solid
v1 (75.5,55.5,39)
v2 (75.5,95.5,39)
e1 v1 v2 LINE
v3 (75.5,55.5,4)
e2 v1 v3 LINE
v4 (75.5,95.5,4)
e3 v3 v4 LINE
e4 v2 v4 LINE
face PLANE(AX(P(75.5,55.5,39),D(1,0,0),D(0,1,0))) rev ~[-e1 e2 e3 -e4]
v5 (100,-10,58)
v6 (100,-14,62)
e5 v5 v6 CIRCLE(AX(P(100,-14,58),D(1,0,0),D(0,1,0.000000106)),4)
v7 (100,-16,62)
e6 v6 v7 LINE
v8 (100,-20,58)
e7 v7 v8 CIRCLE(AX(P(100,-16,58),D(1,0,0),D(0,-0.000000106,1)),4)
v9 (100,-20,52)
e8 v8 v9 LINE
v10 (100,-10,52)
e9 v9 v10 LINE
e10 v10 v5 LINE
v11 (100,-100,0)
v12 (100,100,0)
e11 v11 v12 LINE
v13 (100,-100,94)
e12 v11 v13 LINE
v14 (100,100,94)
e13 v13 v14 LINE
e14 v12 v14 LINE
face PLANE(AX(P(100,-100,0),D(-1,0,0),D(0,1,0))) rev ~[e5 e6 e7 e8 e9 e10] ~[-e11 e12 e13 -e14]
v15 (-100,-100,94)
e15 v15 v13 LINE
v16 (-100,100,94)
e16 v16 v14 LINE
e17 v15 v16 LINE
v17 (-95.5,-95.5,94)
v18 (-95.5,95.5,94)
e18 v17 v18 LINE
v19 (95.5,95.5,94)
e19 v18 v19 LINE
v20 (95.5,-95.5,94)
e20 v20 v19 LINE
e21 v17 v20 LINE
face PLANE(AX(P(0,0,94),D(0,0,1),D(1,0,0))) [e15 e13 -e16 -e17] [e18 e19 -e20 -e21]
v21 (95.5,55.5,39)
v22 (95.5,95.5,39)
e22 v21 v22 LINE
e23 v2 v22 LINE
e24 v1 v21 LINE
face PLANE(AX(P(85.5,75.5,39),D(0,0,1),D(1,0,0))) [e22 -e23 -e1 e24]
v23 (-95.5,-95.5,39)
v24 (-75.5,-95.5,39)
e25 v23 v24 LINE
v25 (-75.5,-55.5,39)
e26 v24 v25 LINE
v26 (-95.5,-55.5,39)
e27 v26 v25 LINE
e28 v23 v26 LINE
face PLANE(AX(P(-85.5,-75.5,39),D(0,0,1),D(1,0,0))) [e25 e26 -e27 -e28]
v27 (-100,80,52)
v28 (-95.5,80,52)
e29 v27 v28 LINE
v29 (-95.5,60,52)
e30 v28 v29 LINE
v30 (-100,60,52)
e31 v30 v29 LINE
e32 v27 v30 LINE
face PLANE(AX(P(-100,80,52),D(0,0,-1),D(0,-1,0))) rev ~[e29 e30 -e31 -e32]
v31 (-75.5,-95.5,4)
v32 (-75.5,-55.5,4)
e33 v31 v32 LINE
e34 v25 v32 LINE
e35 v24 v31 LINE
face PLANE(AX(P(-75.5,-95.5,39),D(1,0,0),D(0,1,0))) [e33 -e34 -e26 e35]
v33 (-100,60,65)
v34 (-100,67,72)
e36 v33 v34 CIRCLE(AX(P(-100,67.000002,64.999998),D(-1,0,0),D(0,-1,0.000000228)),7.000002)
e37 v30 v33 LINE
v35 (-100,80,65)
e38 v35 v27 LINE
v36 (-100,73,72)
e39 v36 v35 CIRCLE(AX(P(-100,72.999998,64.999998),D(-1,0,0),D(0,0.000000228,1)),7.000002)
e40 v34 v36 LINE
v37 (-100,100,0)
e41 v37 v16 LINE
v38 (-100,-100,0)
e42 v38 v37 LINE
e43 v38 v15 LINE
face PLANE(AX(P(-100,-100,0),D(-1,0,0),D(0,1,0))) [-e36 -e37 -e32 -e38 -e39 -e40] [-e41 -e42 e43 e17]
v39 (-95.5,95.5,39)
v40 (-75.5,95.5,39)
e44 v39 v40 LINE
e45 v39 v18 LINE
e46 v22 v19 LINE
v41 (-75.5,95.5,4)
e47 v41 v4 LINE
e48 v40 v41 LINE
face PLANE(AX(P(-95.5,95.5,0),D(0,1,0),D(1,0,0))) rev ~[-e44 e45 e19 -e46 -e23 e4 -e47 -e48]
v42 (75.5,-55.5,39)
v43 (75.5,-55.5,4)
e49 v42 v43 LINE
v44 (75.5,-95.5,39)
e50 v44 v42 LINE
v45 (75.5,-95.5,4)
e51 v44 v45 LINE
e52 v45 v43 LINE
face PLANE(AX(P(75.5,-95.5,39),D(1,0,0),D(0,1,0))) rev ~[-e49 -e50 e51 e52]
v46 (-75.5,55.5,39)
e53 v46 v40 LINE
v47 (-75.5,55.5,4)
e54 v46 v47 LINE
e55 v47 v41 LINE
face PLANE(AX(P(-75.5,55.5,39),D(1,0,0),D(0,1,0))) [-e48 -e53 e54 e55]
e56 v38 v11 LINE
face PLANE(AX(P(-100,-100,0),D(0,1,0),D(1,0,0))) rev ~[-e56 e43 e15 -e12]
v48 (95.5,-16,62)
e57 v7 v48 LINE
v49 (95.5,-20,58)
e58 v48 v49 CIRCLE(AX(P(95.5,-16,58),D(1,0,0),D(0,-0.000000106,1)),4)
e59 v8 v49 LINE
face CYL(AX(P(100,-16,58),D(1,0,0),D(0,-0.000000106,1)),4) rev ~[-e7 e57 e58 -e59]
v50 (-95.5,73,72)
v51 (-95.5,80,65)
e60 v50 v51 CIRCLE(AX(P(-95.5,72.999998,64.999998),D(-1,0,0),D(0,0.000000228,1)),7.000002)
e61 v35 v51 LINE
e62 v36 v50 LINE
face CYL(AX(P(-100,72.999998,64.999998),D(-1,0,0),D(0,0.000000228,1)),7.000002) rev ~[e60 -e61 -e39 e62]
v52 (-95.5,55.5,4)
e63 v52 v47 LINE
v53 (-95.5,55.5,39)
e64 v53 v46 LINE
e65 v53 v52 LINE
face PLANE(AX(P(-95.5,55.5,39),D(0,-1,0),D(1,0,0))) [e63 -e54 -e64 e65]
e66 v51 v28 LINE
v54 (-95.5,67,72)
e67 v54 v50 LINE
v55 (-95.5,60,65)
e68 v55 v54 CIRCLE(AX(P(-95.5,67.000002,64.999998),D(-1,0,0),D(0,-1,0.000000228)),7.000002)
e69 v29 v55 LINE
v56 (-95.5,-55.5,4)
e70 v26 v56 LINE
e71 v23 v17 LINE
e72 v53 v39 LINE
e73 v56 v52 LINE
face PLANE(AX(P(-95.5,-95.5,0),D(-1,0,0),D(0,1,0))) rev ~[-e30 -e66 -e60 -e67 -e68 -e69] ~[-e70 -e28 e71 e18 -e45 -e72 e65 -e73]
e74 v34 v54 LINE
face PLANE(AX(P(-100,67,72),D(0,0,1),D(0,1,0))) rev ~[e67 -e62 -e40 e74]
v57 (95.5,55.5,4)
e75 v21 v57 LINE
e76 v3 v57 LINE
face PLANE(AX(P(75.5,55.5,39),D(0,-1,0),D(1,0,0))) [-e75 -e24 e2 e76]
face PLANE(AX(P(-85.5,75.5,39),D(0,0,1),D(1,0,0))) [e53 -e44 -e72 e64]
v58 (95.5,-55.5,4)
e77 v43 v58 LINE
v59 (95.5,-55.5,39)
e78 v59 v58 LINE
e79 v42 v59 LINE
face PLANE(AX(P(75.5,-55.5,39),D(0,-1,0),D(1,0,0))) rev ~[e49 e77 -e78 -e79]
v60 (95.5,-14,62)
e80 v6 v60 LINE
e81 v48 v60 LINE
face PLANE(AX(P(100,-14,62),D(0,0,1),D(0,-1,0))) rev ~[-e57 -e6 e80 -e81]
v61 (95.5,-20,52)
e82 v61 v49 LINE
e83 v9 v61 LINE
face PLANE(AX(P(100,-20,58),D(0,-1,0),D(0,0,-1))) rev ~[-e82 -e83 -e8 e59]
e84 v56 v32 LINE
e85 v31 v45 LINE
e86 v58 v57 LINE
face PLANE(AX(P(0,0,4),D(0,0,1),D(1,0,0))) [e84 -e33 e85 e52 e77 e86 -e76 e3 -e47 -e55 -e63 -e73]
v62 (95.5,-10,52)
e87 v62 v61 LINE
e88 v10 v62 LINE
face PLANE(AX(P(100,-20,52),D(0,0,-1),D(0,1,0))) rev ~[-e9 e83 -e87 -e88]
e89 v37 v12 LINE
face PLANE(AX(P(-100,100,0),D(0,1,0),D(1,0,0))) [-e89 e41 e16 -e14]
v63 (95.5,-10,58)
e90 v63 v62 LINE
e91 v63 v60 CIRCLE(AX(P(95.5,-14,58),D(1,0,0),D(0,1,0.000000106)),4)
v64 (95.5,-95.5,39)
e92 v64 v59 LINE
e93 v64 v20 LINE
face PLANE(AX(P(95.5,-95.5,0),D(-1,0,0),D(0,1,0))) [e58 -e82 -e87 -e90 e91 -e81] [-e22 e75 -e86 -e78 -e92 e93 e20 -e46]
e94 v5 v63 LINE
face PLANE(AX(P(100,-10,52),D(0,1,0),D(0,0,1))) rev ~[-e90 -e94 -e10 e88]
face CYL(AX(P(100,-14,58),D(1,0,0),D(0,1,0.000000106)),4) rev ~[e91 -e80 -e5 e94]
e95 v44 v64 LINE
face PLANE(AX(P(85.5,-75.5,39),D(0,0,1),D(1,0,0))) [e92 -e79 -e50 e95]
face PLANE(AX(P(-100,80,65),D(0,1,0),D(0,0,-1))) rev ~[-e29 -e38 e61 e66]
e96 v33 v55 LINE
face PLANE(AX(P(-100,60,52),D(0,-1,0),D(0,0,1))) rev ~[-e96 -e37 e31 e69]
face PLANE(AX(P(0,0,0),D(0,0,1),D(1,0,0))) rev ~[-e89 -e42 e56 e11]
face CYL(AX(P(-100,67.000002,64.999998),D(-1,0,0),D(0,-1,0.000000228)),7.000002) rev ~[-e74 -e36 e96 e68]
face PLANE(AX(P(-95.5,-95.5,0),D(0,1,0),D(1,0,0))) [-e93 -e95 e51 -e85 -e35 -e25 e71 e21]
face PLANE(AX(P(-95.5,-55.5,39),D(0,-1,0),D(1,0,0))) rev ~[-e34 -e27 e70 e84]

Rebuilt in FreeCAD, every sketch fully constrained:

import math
import FreeCAD as App
import Part
import Sketcher
from FreeCAD import Vector


def add_polygon(sketch, points):
    """Adds a closed chain of lines whose ends are joined by coincident constraints."""
    first, n = sketch.GeometryCount, len(points)
    for a, b in zip(points, points[1:] + points[:1]):
        sketch.addGeometry(Part.LineSegment(App.Vector(*a, 0), App.Vector(*b, 0)), False)
    for i in range(n):
        sketch.addConstraint(Sketcher.Constraint("Coincident", first + i, 2, first + (i + 1) % n, 1))

doc = App.newDocument("Part")
body = doc.addObject("PartDesign::Body", "Body")

# Sketch on XY plane
sketch1 = body.newObject("Sketcher::SketchObject", "Sketch")
sketch1.AttachmentSupport = (doc.getObject("XY_Plane"), [""])
sketch1.MapMode = "FlatFace"
add_polygon(sketch1, [(-100, 100), (-100, -100), (100, -100), (100, 100)])  # lines 0-3
add_polygon(sketch1, [(96, -96), (-96, -96), (-96, 96), (96, 96)])  # lines 4-7
sketch1.addConstraint(Sketcher.Constraint("Vertical", 0))
sketch1.addConstraint(Sketcher.Constraint("Horizontal", 1))
sketch1.addConstraint(Sketcher.Constraint("Vertical", 2))
sketch1.addConstraint(Sketcher.Constraint("Horizontal", 3))
sketch1.addConstraint(Sketcher.Constraint("Horizontal", 4))
sketch1.addConstraint(Sketcher.Constraint("Vertical", 5))
sketch1.addConstraint(Sketcher.Constraint("Horizontal", 6))
sketch1.addConstraint(Sketcher.Constraint("Vertical", 7))
sketch1.addConstraint(Sketcher.Constraint("Symmetric", 0, 2, 2, 2, -1, 1))
sketch1.addConstraint(Sketcher.Constraint("Symmetric", 4, 2, 6, 2, -1, 1))
sketch1.addConstraint(Sketcher.Constraint("Equal", 3, 0))
sketch1.addConstraint(Sketcher.Constraint("Equal", 6, 5))
sketch1.addConstraint(Sketcher.Constraint("DistanceX", 1, 1, 1, 2, 200.0))
sketch1.addConstraint(Sketcher.Constraint("DistanceX", 4, 2, 4, 1, 191.0))
pad1 = body.newObject("PartDesign::Pad", "Pad")
pad1.Profile = sketch1
pad1.Length = 94

# Sketch on XY plane
sketch2 = body.newObject("Sketcher::SketchObject", "Sketch001")
sketch2.AttachmentSupport = (doc.getObject("XY_Plane"), [""])
sketch2.MapMode = "FlatFace"
add_polygon(sketch2, [(-96, 96), (-96, -96), (96, -96), (96, 96)])  # lines 0-3
sketch2.addConstraint(Sketcher.Constraint("Vertical", 0))
sketch2.addConstraint(Sketcher.Constraint("Horizontal", 1))
sketch2.addConstraint(Sketcher.Constraint("Vertical", 2))
sketch2.addConstraint(Sketcher.Constraint("Horizontal", 3))
sketch2.addConstraint(Sketcher.Constraint("Symmetric", 0, 2, 2, 2, -1, 1))
sketch2.addConstraint(Sketcher.Constraint("Equal", 3, 0))
sketch2.addConstraint(Sketcher.Constraint("DistanceX", 1, 1, 1, 2, 191.0))
pad2 = body.newObject("PartDesign::Pad", "Pad001")
pad2.Profile = sketch2
pad2.Length = 4

# Sketch on XY plane
sketch3 = body.newObject("Sketcher::SketchObject", "Sketch002")
sketch3.AttachmentSupport = (doc.getObject("XY_Plane"), [""])
sketch3.MapMode = "FlatFace"
sketch3.AttachmentOffset = App.Placement(Vector(0, 0, 39), App.Rotation())
add_polygon(sketch3, [(-96, 96), (-96, 56), (-76, 56), (-76, 96)])  # lines 0-3
sketch3.addConstraint(Sketcher.Constraint("Vertical", 0))
sketch3.addConstraint(Sketcher.Constraint("Horizontal", 1))
sketch3.addConstraint(Sketcher.Constraint("Vertical", 2))
sketch3.addConstraint(Sketcher.Constraint("Horizontal", 3))
sketch3.addConstraint(Sketcher.Constraint("DistanceX", 1, 1, 1, 2, 20.0))
sketch3.addConstraint(Sketcher.Constraint("DistanceY", 0, 2, 0, 1, 40.0))
sketch3.addConstraint(Sketcher.Constraint("DistanceX", 0, 2, -1, 1, 95.5))
sketch3.addConstraint(Sketcher.Constraint("DistanceY", -1, 1, 0, 2, 55.5))
pad3 = body.newObject("PartDesign::Pad", "Pad002")
pad3.Profile = sketch3
pad3.Length = 35
pad3.Reversed = True

# Sketch on XY plane
sketch4 = body.newObject("Sketcher::SketchObject", "Sketch003")
sketch4.AttachmentSupport = (doc.getObject("XY_Plane"), [""])
sketch4.MapMode = "FlatFace"
sketch4.AttachmentOffset = App.Placement(Vector(0, 0, 39), App.Rotation())
add_polygon(sketch4, [(-96, -56), (-96, -96), (-76, -96), (-76, -56)])  # lines 0-3
sketch4.addConstraint(Sketcher.Constraint("Vertical", 0))
sketch4.addConstraint(Sketcher.Constraint("Horizontal", 1))
sketch4.addConstraint(Sketcher.Constraint("Vertical", 2))
sketch4.addConstraint(Sketcher.Constraint("Horizontal", 3))
sketch4.addConstraint(Sketcher.Constraint("DistanceX", 1, 1, 1, 2, 20.0))
sketch4.addConstraint(Sketcher.Constraint("DistanceY", 0, 2, 0, 1, 40.0))
sketch4.addConstraint(Sketcher.Constraint("DistanceX", 0, 2, -1, 1, 95.5))
sketch4.addConstraint(Sketcher.Constraint("DistanceY", 0, 2, -1, 1, 95.5))
pad4 = body.newObject("PartDesign::Pad", "Pad003")
pad4.Profile = sketch4
pad4.Length = 35
pad4.Reversed = True

# Sketch on XY plane
sketch5 = body.newObject("Sketcher::SketchObject", "Sketch004")
sketch5.AttachmentSupport = (doc.getObject("XY_Plane"), [""])
sketch5.MapMode = "FlatFace"
sketch5.AttachmentOffset = App.Placement(Vector(0, 0, 39), App.Rotation())
add_polygon(sketch5, [(76, -56), (76, -96), (96, -96), (96, -56)])  # lines 0-3
sketch5.addConstraint(Sketcher.Constraint("Vertical", 0))
sketch5.addConstraint(Sketcher.Constraint("Horizontal", 1))
sketch5.addConstraint(Sketcher.Constraint("Vertical", 2))
sketch5.addConstraint(Sketcher.Constraint("Horizontal", 3))
sketch5.addConstraint(Sketcher.Constraint("DistanceX", 1, 1, 1, 2, 20.0))
sketch5.addConstraint(Sketcher.Constraint("DistanceY", 0, 2, 0, 1, 40.0))
sketch5.addConstraint(Sketcher.Constraint("DistanceX", -1, 1, 0, 2, 75.5))
sketch5.addConstraint(Sketcher.Constraint("DistanceY", 0, 2, -1, 1, 95.5))
pad5 = body.newObject("PartDesign::Pad", "Pad004")
pad5.Profile = sketch5
pad5.Length = 35
pad5.Reversed = True

# Sketch on XY plane
sketch6 = body.newObject("Sketcher::SketchObject", "Sketch005")
sketch6.AttachmentSupport = (doc.getObject("XY_Plane"), [""])
sketch6.MapMode = "FlatFace"
sketch6.AttachmentOffset = App.Placement(Vector(0, 0, 39), App.Rotation())
add_polygon(sketch6, [(76, 96), (76, 56), (96, 56), (96, 96)])  # lines 0-3
sketch6.addConstraint(Sketcher.Constraint("Vertical", 0))
sketch6.addConstraint(Sketcher.Constraint("Horizontal", 1))
sketch6.addConstraint(Sketcher.Constraint("Vertical", 2))
sketch6.addConstraint(Sketcher.Constraint("Horizontal", 3))
sketch6.addConstraint(Sketcher.Constraint("DistanceX", 1, 1, 1, 2, 20.0))
sketch6.addConstraint(Sketcher.Constraint("DistanceY", 0, 2, 0, 1, 40.0))
sketch6.addConstraint(Sketcher.Constraint("DistanceX", -1, 1, 0, 2, 75.5))
sketch6.addConstraint(Sketcher.Constraint("DistanceY", -1, 1, 0, 2, 55.5))
pad6 = body.newObject("PartDesign::Pad", "Pad005")
pad6.Profile = sketch6
pad6.Length = 35
pad6.Reversed = True

# Sketch on YZ plane
sketch7 = body.newObject("Sketcher::SketchObject", "Sketch006")
sketch7.AttachmentSupport = (doc.getObject("YZ_Plane"), [""])
sketch7.MapMode = "FlatFace"
sketch7.AttachmentOffset = App.Placement(Vector(0, 0, -100), App.Rotation())
sketch7.addGeometry(Part.LineSegment(Vector(67, 72, 0), Vector(73, 72, 0)), False)
sketch7.addGeometry(Part.ArcOfCircle(Part.Circle(Vector(73, 65, 0), Vector(0, 0, 1), 7), math.radians(0), math.radians(90)), False)
sketch7.addGeometry(Part.LineSegment(Vector(80, 65, 0), Vector(80, 52, 0)), False)
sketch7.addGeometry(Part.LineSegment(Vector(80, 52, 0), Vector(60, 52, 0)), False)
sketch7.addGeometry(Part.LineSegment(Vector(60, 52, 0), Vector(60, 65, 0)), False)
sketch7.addGeometry(Part.ArcOfCircle(Part.Circle(Vector(67, 65, 0), Vector(0, 0, 1), 7), math.radians(90), math.radians(180)), False)
sketch7.addConstraint(Sketcher.Constraint("Tangent", 0, 2, 1, 2))
sketch7.addConstraint(Sketcher.Constraint("Tangent", 1, 1, 2, 1))
sketch7.addConstraint(Sketcher.Constraint("Coincident", 2, 2, 3, 1))
sketch7.addConstraint(Sketcher.Constraint("Coincident", 3, 2, 4, 1))
sketch7.addConstraint(Sketcher.Constraint("Tangent", 4, 2, 5, 2))
sketch7.addConstraint(Sketcher.Constraint("Tangent", 5, 1, 0, 1))
sketch7.addConstraint(Sketcher.Constraint("Horizontal", 0))
sketch7.addConstraint(Sketcher.Constraint("Vertical", 2))
sketch7.addConstraint(Sketcher.Constraint("Horizontal", 3))
sketch7.addConstraint(Sketcher.Constraint("Vertical", 4))
sketch7.addConstraint(Sketcher.Constraint("Equal", 1, 5))
sketch7.addConstraint(Sketcher.Constraint("Radius", 1, 7.000002))
sketch7.addConstraint(Sketcher.Constraint("DistanceX", 0, 1, 0, 2, 6.0))
sketch7.addConstraint(Sketcher.Constraint("DistanceY", 2, 2, 2, 1, 13.0))
sketch7.addConstraint(Sketcher.Constraint("DistanceX", -1, 1, 1, 3, 72.999998))
sketch7.addConstraint(Sketcher.Constraint("DistanceY", -1, 1, 1, 3, 64.999998))
pocket1 = body.newObject("PartDesign::Pocket", "Pocket")
pocket1.Profile = sketch7
pocket1.Length = 25
pocket1.Reversed = True

# Sketch on YZ plane
sketch8 = body.newObject("Sketcher::SketchObject", "Sketch007")
sketch8.AttachmentSupport = (doc.getObject("YZ_Plane"), [""])
sketch8.MapMode = "FlatFace"
sketch8.AttachmentOffset = App.Placement(Vector(0, 0, 100), App.Rotation())
sketch8.addGeometry(Part.LineSegment(Vector(-14, 62, 0), Vector(-16, 62, 0)), False)
sketch8.addGeometry(Part.ArcOfCircle(Part.Circle(Vector(-16, 58, 0), Vector(0, 0, 1), 4), math.radians(90), math.radians(180)), False)
sketch8.addGeometry(Part.LineSegment(Vector(-20, 58, 0), Vector(-20, 52, 0)), False)
sketch8.addGeometry(Part.LineSegment(Vector(-20, 52, 0), Vector(-10, 52, 0)), False)
sketch8.addGeometry(Part.LineSegment(Vector(-10, 52, 0), Vector(-10, 58, 0)), False)
sketch8.addGeometry(Part.ArcOfCircle(Part.Circle(Vector(-14, 58, 0), Vector(0, 0, 1), 4), math.radians(0), math.radians(90)), False)
sketch8.addConstraint(Sketcher.Constraint("Tangent", 0, 2, 1, 1))
sketch8.addConstraint(Sketcher.Constraint("Tangent", 1, 2, 2, 1))
sketch8.addConstraint(Sketcher.Constraint("Coincident", 2, 2, 3, 1))
sketch8.addConstraint(Sketcher.Constraint("Coincident", 3, 2, 4, 1))
sketch8.addConstraint(Sketcher.Constraint("Tangent", 4, 2, 5, 1))
sketch8.addConstraint(Sketcher.Constraint("Tangent", 5, 2, 0, 1))
sketch8.addConstraint(Sketcher.Constraint("Horizontal", 0))
sketch8.addConstraint(Sketcher.Constraint("Vertical", 2))
sketch8.addConstraint(Sketcher.Constraint("Horizontal", 3))
sketch8.addConstraint(Sketcher.Constraint("Vertical", 4))
sketch8.addConstraint(Sketcher.Constraint("Equal", 1, 5))
sketch8.addConstraint(Sketcher.Constraint("Radius", 1, 4.0))
sketch8.addConstraint(Sketcher.Constraint("DistanceX", 0, 2, 0, 1, 2.0))
sketch8.addConstraint(Sketcher.Constraint("DistanceY", 2, 2, 2, 1, 6.0))
sketch8.addConstraint(Sketcher.Constraint("DistanceX", 1, 3, -1, 1, 16.0))
sketch8.addConstraint(Sketcher.Constraint("DistanceY", -1, 1, 1, 3, 58.0))
pocket2 = body.newObject("PartDesign::Pocket", "Pocket001")
pocket2.Profile = sketch8
pocket2.Length = 25

doc.recompute()
